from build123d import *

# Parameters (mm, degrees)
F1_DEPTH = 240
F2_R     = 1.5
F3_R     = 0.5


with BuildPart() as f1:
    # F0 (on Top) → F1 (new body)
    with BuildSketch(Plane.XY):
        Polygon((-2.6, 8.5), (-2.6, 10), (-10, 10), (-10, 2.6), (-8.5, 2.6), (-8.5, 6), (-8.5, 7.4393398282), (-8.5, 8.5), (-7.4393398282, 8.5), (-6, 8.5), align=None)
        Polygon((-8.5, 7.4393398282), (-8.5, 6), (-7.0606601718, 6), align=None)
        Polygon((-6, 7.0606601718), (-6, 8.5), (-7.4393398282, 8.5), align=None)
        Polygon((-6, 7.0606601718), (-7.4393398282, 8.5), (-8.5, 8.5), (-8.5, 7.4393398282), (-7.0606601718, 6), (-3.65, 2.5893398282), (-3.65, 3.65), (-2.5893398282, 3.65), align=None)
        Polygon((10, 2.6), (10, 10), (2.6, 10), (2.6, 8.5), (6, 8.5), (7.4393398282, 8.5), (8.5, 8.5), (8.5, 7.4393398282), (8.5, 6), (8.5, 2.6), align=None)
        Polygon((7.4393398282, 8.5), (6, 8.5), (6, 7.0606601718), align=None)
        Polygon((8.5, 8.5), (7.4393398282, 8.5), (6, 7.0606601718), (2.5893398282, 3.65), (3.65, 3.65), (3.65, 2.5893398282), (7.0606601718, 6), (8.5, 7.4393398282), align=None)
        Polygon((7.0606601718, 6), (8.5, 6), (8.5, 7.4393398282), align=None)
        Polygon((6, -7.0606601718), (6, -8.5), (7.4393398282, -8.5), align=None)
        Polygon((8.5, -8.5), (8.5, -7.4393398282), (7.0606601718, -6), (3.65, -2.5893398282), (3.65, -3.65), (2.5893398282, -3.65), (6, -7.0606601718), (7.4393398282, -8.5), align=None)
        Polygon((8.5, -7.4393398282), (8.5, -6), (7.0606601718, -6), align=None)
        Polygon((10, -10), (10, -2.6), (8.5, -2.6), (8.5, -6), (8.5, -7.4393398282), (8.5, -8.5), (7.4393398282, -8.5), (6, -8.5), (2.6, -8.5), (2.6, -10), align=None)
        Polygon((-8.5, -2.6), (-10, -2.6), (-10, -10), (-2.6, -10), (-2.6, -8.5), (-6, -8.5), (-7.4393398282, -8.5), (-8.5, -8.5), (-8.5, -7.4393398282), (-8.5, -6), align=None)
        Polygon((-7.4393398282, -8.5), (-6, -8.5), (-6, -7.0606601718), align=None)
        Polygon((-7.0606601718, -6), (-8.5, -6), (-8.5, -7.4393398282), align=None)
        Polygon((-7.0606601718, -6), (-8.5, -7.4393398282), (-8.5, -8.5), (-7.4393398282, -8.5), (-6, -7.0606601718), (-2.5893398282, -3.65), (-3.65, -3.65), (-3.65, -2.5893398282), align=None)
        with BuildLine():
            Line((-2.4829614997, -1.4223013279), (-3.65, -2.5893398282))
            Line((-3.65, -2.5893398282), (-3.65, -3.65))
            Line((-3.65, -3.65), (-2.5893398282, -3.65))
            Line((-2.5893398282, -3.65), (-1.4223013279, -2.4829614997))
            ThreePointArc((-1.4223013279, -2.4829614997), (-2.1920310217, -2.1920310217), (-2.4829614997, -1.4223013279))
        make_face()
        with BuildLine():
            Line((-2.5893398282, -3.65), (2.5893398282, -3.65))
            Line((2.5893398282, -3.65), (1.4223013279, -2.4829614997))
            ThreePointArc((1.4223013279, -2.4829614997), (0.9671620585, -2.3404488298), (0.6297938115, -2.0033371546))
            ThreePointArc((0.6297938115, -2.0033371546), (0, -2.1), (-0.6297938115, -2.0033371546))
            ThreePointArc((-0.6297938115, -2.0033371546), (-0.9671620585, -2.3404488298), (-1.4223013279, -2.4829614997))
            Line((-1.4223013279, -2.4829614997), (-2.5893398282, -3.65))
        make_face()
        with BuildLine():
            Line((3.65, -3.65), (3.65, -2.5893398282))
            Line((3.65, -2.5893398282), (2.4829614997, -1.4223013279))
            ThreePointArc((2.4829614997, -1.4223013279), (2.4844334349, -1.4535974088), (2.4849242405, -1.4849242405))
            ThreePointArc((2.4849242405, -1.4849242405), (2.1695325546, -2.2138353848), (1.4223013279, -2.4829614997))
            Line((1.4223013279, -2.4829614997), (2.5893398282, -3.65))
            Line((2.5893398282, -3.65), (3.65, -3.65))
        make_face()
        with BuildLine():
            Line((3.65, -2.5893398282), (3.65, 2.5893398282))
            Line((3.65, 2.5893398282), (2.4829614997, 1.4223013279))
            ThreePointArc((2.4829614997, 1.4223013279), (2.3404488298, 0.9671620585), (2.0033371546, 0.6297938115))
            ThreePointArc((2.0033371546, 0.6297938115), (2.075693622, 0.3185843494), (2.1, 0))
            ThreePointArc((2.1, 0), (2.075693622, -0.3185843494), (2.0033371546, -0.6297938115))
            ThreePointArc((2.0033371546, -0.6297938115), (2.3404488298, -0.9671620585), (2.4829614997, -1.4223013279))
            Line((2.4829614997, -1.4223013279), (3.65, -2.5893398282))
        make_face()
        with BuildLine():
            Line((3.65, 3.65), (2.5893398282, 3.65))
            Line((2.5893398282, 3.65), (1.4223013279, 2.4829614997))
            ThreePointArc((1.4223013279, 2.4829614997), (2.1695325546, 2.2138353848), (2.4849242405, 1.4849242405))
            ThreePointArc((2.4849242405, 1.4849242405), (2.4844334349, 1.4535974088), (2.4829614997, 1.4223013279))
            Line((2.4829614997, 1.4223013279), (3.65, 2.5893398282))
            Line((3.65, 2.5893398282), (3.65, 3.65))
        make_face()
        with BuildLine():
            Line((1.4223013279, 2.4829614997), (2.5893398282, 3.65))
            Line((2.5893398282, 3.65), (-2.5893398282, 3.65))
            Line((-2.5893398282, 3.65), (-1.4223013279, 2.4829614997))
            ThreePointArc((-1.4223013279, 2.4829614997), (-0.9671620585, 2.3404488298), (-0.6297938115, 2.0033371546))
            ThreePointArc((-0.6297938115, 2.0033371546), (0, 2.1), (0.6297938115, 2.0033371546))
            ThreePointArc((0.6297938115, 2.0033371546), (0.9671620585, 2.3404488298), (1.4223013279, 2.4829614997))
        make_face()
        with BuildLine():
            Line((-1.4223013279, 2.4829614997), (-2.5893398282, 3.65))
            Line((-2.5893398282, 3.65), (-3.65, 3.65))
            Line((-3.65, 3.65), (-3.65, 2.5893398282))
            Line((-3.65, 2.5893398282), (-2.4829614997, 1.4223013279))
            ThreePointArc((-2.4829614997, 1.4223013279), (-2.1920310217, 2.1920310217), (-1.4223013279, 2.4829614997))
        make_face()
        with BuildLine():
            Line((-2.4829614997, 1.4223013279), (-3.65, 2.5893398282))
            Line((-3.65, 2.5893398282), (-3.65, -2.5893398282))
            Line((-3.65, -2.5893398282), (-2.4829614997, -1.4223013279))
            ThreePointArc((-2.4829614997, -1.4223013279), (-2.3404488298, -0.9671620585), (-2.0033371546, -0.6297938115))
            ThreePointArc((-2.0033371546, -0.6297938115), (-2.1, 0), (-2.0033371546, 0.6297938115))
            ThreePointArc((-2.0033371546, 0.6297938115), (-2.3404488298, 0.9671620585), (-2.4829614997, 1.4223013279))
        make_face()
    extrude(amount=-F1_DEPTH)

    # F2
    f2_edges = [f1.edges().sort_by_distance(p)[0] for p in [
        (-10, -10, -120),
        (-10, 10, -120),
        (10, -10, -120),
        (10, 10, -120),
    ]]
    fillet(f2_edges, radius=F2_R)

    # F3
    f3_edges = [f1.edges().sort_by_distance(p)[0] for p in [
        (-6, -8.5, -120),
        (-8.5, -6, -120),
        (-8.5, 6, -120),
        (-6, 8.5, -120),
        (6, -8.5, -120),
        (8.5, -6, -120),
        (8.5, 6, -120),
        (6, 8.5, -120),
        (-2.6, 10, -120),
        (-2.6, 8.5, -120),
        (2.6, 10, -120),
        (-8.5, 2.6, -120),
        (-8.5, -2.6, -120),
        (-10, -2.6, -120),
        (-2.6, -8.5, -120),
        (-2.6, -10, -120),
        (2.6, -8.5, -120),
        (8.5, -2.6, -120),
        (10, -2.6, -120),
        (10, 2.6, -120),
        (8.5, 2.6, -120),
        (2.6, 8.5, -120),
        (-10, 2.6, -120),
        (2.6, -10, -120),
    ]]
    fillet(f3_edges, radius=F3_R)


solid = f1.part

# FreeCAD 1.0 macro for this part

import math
import FreeCAD as App
import Part
import Sketcher

V = App.Vector


def edges_at(feature, points):
    """Names of the edges that pass closest to the given points."""
    edges = feature.Shape.Edges
    near = lambda p: min(range(len(edges)), key=lambda i: edges[i].distToShape(Part.Vertex(*p))[0])
    return sorted({f"Edge{near(p) + 1}" for p in points})


def add_polygon(sketch, points):
    """Adds a closed chain of lines whose ends are joined by coincident constraints."""
    first, n = sketch.GeometryCount, len(points)
    for a, b in zip(points, points[1:] + points[:1]):
        sketch.addGeometry(Part.LineSegment(App.Vector(*a, 0), App.Vector(*b, 0)), False)
    for i in range(n):
        sketch.addConstraint(Sketcher.Constraint("Coincident", first + i, 2, first + (i + 1) % n, 1))

doc = App.newDocument("Part")
body = doc.addObject("PartDesign::Body", "Body")

# Sketch on XY plane
sketch1 = body.newObject("Sketcher::SketchObject", "Sketch")
sketch1.AttachmentSupport = (doc.getObject("XY_Plane"), [""])
sketch1.MapMode = "FlatFace"
add_polygon(sketch1, [(-2.6, 8.5), (-2.6, 10), (-10, 10), (-10, 2.6), (-8.5, 2.6), (-8.5, 6), (-7.06, 6), (-3.65, 2.59), (-3.65, -2.59), (-7.06, -6), (-8.5, -6), (-8.5, -2.6), (-10, -2.6), (-10, -10), (-2.6, -10), (-2.6, -8.5), (-6, -8.5), (-6, -7.06), (-2.59, -3.65), (2.59, -3.65), (6, -7.06), (6, -8.5), (2.6, -8.5), (2.6, -10), (10, -10), (10, -2.6), (8.5, -2.6), (8.5, -6), (7.06, -6), (3.65, -2.59), (3.65, 2.59), (7.06, 6), (8.5, 6), (8.5, 2.6), (10, 2.6), (10, 10), (2.6, 10), (2.6, 8.5), (6, 8.5), (6, 7.06), (2.59, 3.65), (-2.59, 3.65), (-6, 7.06), (-6, 8.5)])  # lines 0-43
sketch1.addGeometry(Part.ArcOfCircle(Part.Circle(V(-1.48, 1.48, 0), V(0, 0, 1), 1), math.radians(86), math.radians(184)), False)  # 44
sketch1.addGeometry(Part.ArcOfCircle(Part.Circle(V(-1.48, 1.48, 0), V(0, 0, 1), 1), math.radians(31), math.radians(86)), False)  # 45
sketch1.addGeometry(Part.ArcOfCircle(Part.Circle(V(0, 0, 0), V(0, 0, 1), 2.1), math.radians(73), math.radians(107)), False)  # 46
sketch1.addGeometry(Part.ArcOfCircle(Part.Circle(V(1.48, 1.48, 0), V(0, 0, 1), 1), math.radians(94), math.radians(149)), False)  # 47
sketch1.addGeometry(Part.ArcOfCircle(Part.Circle(V(1.48, 1.48, 0), V(0, 0, 1), 1), math.radians(0), math.radians(94)), False)  # 48
sketch1.addGeometry(Part.ArcOfCircle(Part.Circle(V(1.48, 1.48, 0), V(0, 0, 1), 1), math.radians(-3.59), math.radians(0)), False)  # 49
sketch1.addGeometry(Part.ArcOfCircle(Part.Circle(V(1.48, 1.48, 0), V(0, 0, 1), 1), math.radians(-59), math.radians(-4)), False)  # 50
sketch1.addGeometry(Part.ArcOfCircle(Part.Circle(V(0, 0, 0), V(0, 0, 1), 2.1), math.radians(0), math.radians(17.45)), False)  # 51
sketch1.addGeometry(Part.ArcOfCircle(Part.Circle(V(0, 0, 0), V(0, 0, 1), 2.1), math.radians(-17.45), math.radians(0)), False)  # 52
sketch1.addGeometry(Part.ArcOfCircle(Part.Circle(V(1.48, -1.48, 0), V(0, 0, 1), 1), math.radians(4), math.radians(59)), False)  # 53
sketch1.addGeometry(Part.ArcOfCircle(Part.Circle(V(1.48, -1.48, 0), V(0, 0, 1), 1), math.radians(0), math.radians(3.59)), False)  # 54
sketch1.addGeometry(Part.ArcOfCircle(Part.Circle(V(1.48, -1.48, 0), V(0, 0, 1), 1), math.radians(-94), math.radians(0)), False)  # 55
sketch1.addGeometry(Part.ArcOfCircle(Part.Circle(V(1.48, -1.48, 0), V(0, 0, 1), 1), math.radians(-149), math.radians(-94)), False)  # 56
sketch1.addGeometry(Part.ArcOfCircle(Part.Circle(V(0, 0, 0), V(0, 0, 1), 2.1), math.radians(-107), math.radians(-73)), False)  # 57
sketch1.addGeometry(Part.ArcOfCircle(Part.Circle(V(-1.48, -1.48, 0), V(0, 0, 1), 1), math.radians(-86), math.radians(-31)), False)  # 58
sketch1.addGeometry(Part.ArcOfCircle(Part.Circle(V(-1.48, -1.48, 0), V(0, 0, 1), 1), math.radians(176), math.radians(274)), False)  # 59
sketch1.addGeometry(Part.ArcOfCircle(Part.Circle(V(-1.48, -1.48, 0), V(0, 0, 1), 1), math.radians(121), math.radians(176)), False)  # 60
sketch1.addGeometry(Part.ArcOfCircle(Part.Circle(V(0, 0, 0), V(0, 0, 1), 2.1), math.radians(163), math.radians(197)), False)  # 61
sketch1.addGeometry(Part.ArcOfCircle(Part.Circle(V(-1.48, 1.48, 0), V(0, 0, 1), 1), math.radians(-176), math.radians(-121)), False)  # 62
sketch1.addConstraint([
    Sketcher.Constraint("Tangent", 44, 1, 45, 2),
    Sketcher.Constraint("Coincident", 45, 1, 46, 2),
    Sketcher.Constraint("Coincident", 46, 1, 47, 2),
    Sketcher.Constraint("Tangent", 47, 1, 48, 2),
    Sketcher.Constraint("Tangent", 48, 1, 49, 2),
    Sketcher.Constraint("Tangent", 49, 1, 50, 2),
    Sketcher.Constraint("Coincident", 50, 1, 51, 2),
    Sketcher.Constraint("Tangent", 51, 1, 52, 2),
    Sketcher.Constraint("Coincident", 52, 1, 53, 2),
    Sketcher.Constraint("Tangent", 53, 1, 54, 2),
    Sketcher.Constraint("Tangent", 54, 1, 55, 2),
    Sketcher.Constraint("Tangent", 55, 1, 56, 2),
    Sketcher.Constraint("Coincident", 56, 1, 57, 2),
    Sketcher.Constraint("Coincident", 57, 1, 58, 2),
    Sketcher.Constraint("Tangent", 58, 1, 59, 2),
    Sketcher.Constraint("Tangent", 59, 1, 60, 2),
    Sketcher.Constraint("Coincident", 60, 1, 61, 2),
    Sketcher.Constraint("Coincident", 61, 1, 62, 2),
    Sketcher.Constraint("Tangent", 62, 1, 44, 2),
    Sketcher.Constraint("Vertical", 0),
    Sketcher.Constraint("Horizontal", 1),
    Sketcher.Constraint("Vertical", 2),
    Sketcher.Constraint("Horizontal", 3),
    Sketcher.Constraint("Vertical", 4),
    Sketcher.Constraint("Horizontal", 5),
    Sketcher.Constraint("Vertical", 7),
    Sketcher.Constraint("Horizontal", 9),
    Sketcher.Constraint("Vertical", 10),
    Sketcher.Constraint("Horizontal", 11),
    Sketcher.Constraint("Vertical", 12),
    Sketcher.Constraint("Horizontal", 13),
    Sketcher.Constraint("Vertical", 14),
    Sketcher.Constraint("Horizontal", 15),
    Sketcher.Constraint("Vertical", 16),
    Sketcher.Constraint("Horizontal", 18),
    Sketcher.Constraint("Vertical", 20),
    Sketcher.Constraint("Horizontal", 21),
    Sketcher.Constraint("Vertical", 22),
    Sketcher.Constraint("Horizontal", 23),
    Sketcher.Constraint("Vertical", 24),
    Sketcher.Constraint("Horizontal", 25),
    Sketcher.Constraint("Vertical", 26),
    Sketcher.Constraint("Horizontal", 27),
    Sketcher.Constraint("Vertical", 29),
    Sketcher.Constraint("Horizontal", 31),
    Sketcher.Constraint("Vertical", 32),
    Sketcher.Constraint("Horizontal", 33),
    Sketcher.Constraint("Vertical", 34),
    Sketcher.Constraint("Horizontal", 35),
    Sketcher.Constraint("Vertical", 36),
    Sketcher.Constraint("Horizontal", 37),
    Sketcher.Constraint("Vertical", 38),
    Sketcher.Constraint("Horizontal", 40),
    Sketcher.Constraint("Vertical", 42),
    Sketcher.Constraint("Horizontal", 43),
    Sketcher.Constraint("Coincident", 46, 3, -1, 1),
    Sketcher.Constraint("Coincident", 51, 3, -1, 1),
    Sketcher.Constraint("Coincident", 57, 3, -1, 1),
    Sketcher.Constraint("Coincident", 61, 3, -1, 1),
    Sketcher.Constraint("Coincident", 49, 3, 47, 3),
    Sketcher.Constraint("Coincident", 55, 3, 53, 3),
    Sketcher.Constraint("Coincident", 60, 3, 58, 3),
    Sketcher.Constraint("Equal", 44, 45),
    Sketcher.Constraint("Equal", 45, 47),
    Sketcher.Constraint("Equal", 49, 50),
    Sketcher.Constraint("Equal", 46, 51),
    Sketcher.Constraint("Equal", 51, 52),
    Sketcher.Constraint("Equal", 50, 53),
    Sketcher.Constraint("Equal", 55, 56),
    Sketcher.Constraint("Equal", 52, 57),
    Sketcher.Constraint("Equal", 56, 58),
    Sketcher.Constraint("Equal", 57, 61),
    Sketcher.Constraint("Equal", 60, 62),
    Sketcher.Constraint("Symmetric", 44, 3, 53, 3, -1, 1),
    Sketcher.Constraint("Symmetric", 47, 3, 58, 3, -1, 1),
    Sketcher.Constraint("Symmetric", 0, 2, 22, 2, -1, 1),
    Sketcher.Constraint("Symmetric", 2, 2, 24, 2, -1, 1),
    Sketcher.Constraint("Symmetric", 4, 2, 26, 2, -1, 1),
    Sketcher.Constraint("Symmetric", 6, 2, 28, 2, -1, 1),
    Sketcher.Constraint("Symmetric", 8, 2, 30, 2, -1, 1),
    Sketcher.Constraint("Symmetric", 10, 2, 32, 2, -1, 1),
    Sketcher.Constraint("Symmetric", 12, 2, 34, 2, -1, 1),
    Sketcher.Constraint("Symmetric", 14, 2, 36, 2, -1, 1),
    Sketcher.Constraint("Symmetric", 16, 2, 38, 2, -1, 1),
    Sketcher.Constraint("Symmetric", 17, 2, 39, 2, -1, 1),
    Sketcher.Constraint("Symmetric", 19, 2, 41, 2, -1, 1),
    Sketcher.Constraint("Symmetric", 44, 3, 47, 3, -2),
    Sketcher.Constraint("Symmetric", 16, 2, 19, 2, -2),
    Sketcher.Constraint("Symmetric", 14, 2, 21, 2, -2),
    Sketcher.Constraint("Symmetric", 12, 2, 23, 2, -2),
    Sketcher.Constraint("Symmetric", 10, 2, 25, 2, -2),
    Sketcher.Constraint("Symmetric", 8, 2, 27, 2, -2),
    Sketcher.Constraint("PointOnObject", 51, 1, -1),
    Sketcher.Constraint("Perpendicular", 6, 8),
    Sketcher.Constraint("Parallel", 8, 17),
    Sketcher.Constraint("Perpendicular", 17, 19),
    Sketcher.Constraint("Parallel", 19, 28),
    Sketcher.Constraint("Perpendicular", 28, 30),
    Sketcher.Constraint("Perpendicular", 39, 41),
    Sketcher.Constraint("Horizontal", 7, 2, 28, 2),
    Sketcher.Constraint("Horizontal", 37, 2, 42, 2),
    Sketcher.Constraint("Horizontal", 44, 1, 47, 1),
    Sketcher.Constraint("Horizontal", 62, 3, 48, 1),
    Sketcher.Constraint("Horizontal", 60, 3, 54, 1),
    Sketcher.Constraint("Horizontal", 55, 1, 58, 1),
    Sketcher.Constraint("Horizontal", 53, 1, 59, 1),
    Sketcher.Constraint("Horizontal", 49, 1, 62, 1),
    Sketcher.Constraint("Vertical", 49, 1, 53, 1),
    Sketcher.Constraint("Vertical", 47, 1, 55, 1),
    Sketcher.Constraint("Equal", 33, 0),
    Sketcher.Constraint("Equal", 35, 2),
    Sketcher.Constraint("Equal", 43, 4),
    Sketcher.Constraint("Equal", 40, 7),
    Sketcher.Constraint("Equal", 31, 16),
    Sketcher.Constraint("Equal", 8, 17),
    Sketcher.Constraint("Radius", 44, 1.0),
    Sketcher.Constraint("Radius", 46, 2.1),
    Sketcher.Constraint("DistanceX", 1, 2, 1, 1, 7.4),
    Sketcher.Constraint("DistanceX", 3, 1, 3, 2, 1.5),
    Sketcher.Constraint("DistanceX", 15, 2, 15, 1, 3.4),
    Sketcher.Constraint("DistanceY", -1, 1, 0, 2, 10.0),
    Sketcher.Constraint("DistanceX", 6, 2, -1, 1, 3.65),
    Sketcher.Constraint("Distance", 6, 4.823402),
    Sketcher.Constraint("DistanceX", 44, 1, -1, 1, 1.422301),
    Sketcher.Constraint("DistanceY", -1, 1, 49, 1, 1.422301),
    Sketcher.Constraint("DistanceY", -1, 1, 44, 1, 2.482962),
    Sketcher.Constraint("DistanceX", -1, 1, 49, 1, 2.482962),
])
pad1 = body.newObject("PartDesign::Pad", "Pad")
pad1.Profile = sketch1
pad1.Length = 240
pad1.Reversed = True
doc.recompute()

fillet = body.newObject("PartDesign::Fillet", "Fillet")
fillet.Base = (pad1, edges_at(pad1, [
    (-10, -10, -120),
    (-10, 10, -120),
    (10, -10, -120),
    (10, 10, -120),
]))
fillet.Radius = 1.5
doc.recompute()

fillet2 = body.newObject("PartDesign::Fillet", "Fillet001")
fillet2.Base = (fillet, edges_at(fillet, [
    (-6, -8.5, -120),
    (-8.5, -6, -120),
    (-8.5, 6, -120),
    (-6, 8.5, -120),
    (6, -8.5, -120),
    (8.5, -6, -120),
    (8.5, 6, -120),
    (6, 8.5, -120),
    (-2.6, 10, -120),
    (-2.6, 8.5, -120),
    (2.6, 10, -120),
    (-8.5, 2.6, -120),
    (-8.5, -2.6, -120),
    (-10, -2.6, -120),
    (-2.6, -8.5, -120),
    (-2.6, -10, -120),
    (2.6, -8.5, -120),
    (8.5, -2.6, -120),
    (10, -2.6, -120),
    (10, 2.6, -120),
    (8.5, 2.6, -120),
    (2.6, 8.5, -120),
    (-10, 2.6, -120),
    (2.6, -10, -120),
]))
fillet2.Radius = 0.5

doc.recompute()
